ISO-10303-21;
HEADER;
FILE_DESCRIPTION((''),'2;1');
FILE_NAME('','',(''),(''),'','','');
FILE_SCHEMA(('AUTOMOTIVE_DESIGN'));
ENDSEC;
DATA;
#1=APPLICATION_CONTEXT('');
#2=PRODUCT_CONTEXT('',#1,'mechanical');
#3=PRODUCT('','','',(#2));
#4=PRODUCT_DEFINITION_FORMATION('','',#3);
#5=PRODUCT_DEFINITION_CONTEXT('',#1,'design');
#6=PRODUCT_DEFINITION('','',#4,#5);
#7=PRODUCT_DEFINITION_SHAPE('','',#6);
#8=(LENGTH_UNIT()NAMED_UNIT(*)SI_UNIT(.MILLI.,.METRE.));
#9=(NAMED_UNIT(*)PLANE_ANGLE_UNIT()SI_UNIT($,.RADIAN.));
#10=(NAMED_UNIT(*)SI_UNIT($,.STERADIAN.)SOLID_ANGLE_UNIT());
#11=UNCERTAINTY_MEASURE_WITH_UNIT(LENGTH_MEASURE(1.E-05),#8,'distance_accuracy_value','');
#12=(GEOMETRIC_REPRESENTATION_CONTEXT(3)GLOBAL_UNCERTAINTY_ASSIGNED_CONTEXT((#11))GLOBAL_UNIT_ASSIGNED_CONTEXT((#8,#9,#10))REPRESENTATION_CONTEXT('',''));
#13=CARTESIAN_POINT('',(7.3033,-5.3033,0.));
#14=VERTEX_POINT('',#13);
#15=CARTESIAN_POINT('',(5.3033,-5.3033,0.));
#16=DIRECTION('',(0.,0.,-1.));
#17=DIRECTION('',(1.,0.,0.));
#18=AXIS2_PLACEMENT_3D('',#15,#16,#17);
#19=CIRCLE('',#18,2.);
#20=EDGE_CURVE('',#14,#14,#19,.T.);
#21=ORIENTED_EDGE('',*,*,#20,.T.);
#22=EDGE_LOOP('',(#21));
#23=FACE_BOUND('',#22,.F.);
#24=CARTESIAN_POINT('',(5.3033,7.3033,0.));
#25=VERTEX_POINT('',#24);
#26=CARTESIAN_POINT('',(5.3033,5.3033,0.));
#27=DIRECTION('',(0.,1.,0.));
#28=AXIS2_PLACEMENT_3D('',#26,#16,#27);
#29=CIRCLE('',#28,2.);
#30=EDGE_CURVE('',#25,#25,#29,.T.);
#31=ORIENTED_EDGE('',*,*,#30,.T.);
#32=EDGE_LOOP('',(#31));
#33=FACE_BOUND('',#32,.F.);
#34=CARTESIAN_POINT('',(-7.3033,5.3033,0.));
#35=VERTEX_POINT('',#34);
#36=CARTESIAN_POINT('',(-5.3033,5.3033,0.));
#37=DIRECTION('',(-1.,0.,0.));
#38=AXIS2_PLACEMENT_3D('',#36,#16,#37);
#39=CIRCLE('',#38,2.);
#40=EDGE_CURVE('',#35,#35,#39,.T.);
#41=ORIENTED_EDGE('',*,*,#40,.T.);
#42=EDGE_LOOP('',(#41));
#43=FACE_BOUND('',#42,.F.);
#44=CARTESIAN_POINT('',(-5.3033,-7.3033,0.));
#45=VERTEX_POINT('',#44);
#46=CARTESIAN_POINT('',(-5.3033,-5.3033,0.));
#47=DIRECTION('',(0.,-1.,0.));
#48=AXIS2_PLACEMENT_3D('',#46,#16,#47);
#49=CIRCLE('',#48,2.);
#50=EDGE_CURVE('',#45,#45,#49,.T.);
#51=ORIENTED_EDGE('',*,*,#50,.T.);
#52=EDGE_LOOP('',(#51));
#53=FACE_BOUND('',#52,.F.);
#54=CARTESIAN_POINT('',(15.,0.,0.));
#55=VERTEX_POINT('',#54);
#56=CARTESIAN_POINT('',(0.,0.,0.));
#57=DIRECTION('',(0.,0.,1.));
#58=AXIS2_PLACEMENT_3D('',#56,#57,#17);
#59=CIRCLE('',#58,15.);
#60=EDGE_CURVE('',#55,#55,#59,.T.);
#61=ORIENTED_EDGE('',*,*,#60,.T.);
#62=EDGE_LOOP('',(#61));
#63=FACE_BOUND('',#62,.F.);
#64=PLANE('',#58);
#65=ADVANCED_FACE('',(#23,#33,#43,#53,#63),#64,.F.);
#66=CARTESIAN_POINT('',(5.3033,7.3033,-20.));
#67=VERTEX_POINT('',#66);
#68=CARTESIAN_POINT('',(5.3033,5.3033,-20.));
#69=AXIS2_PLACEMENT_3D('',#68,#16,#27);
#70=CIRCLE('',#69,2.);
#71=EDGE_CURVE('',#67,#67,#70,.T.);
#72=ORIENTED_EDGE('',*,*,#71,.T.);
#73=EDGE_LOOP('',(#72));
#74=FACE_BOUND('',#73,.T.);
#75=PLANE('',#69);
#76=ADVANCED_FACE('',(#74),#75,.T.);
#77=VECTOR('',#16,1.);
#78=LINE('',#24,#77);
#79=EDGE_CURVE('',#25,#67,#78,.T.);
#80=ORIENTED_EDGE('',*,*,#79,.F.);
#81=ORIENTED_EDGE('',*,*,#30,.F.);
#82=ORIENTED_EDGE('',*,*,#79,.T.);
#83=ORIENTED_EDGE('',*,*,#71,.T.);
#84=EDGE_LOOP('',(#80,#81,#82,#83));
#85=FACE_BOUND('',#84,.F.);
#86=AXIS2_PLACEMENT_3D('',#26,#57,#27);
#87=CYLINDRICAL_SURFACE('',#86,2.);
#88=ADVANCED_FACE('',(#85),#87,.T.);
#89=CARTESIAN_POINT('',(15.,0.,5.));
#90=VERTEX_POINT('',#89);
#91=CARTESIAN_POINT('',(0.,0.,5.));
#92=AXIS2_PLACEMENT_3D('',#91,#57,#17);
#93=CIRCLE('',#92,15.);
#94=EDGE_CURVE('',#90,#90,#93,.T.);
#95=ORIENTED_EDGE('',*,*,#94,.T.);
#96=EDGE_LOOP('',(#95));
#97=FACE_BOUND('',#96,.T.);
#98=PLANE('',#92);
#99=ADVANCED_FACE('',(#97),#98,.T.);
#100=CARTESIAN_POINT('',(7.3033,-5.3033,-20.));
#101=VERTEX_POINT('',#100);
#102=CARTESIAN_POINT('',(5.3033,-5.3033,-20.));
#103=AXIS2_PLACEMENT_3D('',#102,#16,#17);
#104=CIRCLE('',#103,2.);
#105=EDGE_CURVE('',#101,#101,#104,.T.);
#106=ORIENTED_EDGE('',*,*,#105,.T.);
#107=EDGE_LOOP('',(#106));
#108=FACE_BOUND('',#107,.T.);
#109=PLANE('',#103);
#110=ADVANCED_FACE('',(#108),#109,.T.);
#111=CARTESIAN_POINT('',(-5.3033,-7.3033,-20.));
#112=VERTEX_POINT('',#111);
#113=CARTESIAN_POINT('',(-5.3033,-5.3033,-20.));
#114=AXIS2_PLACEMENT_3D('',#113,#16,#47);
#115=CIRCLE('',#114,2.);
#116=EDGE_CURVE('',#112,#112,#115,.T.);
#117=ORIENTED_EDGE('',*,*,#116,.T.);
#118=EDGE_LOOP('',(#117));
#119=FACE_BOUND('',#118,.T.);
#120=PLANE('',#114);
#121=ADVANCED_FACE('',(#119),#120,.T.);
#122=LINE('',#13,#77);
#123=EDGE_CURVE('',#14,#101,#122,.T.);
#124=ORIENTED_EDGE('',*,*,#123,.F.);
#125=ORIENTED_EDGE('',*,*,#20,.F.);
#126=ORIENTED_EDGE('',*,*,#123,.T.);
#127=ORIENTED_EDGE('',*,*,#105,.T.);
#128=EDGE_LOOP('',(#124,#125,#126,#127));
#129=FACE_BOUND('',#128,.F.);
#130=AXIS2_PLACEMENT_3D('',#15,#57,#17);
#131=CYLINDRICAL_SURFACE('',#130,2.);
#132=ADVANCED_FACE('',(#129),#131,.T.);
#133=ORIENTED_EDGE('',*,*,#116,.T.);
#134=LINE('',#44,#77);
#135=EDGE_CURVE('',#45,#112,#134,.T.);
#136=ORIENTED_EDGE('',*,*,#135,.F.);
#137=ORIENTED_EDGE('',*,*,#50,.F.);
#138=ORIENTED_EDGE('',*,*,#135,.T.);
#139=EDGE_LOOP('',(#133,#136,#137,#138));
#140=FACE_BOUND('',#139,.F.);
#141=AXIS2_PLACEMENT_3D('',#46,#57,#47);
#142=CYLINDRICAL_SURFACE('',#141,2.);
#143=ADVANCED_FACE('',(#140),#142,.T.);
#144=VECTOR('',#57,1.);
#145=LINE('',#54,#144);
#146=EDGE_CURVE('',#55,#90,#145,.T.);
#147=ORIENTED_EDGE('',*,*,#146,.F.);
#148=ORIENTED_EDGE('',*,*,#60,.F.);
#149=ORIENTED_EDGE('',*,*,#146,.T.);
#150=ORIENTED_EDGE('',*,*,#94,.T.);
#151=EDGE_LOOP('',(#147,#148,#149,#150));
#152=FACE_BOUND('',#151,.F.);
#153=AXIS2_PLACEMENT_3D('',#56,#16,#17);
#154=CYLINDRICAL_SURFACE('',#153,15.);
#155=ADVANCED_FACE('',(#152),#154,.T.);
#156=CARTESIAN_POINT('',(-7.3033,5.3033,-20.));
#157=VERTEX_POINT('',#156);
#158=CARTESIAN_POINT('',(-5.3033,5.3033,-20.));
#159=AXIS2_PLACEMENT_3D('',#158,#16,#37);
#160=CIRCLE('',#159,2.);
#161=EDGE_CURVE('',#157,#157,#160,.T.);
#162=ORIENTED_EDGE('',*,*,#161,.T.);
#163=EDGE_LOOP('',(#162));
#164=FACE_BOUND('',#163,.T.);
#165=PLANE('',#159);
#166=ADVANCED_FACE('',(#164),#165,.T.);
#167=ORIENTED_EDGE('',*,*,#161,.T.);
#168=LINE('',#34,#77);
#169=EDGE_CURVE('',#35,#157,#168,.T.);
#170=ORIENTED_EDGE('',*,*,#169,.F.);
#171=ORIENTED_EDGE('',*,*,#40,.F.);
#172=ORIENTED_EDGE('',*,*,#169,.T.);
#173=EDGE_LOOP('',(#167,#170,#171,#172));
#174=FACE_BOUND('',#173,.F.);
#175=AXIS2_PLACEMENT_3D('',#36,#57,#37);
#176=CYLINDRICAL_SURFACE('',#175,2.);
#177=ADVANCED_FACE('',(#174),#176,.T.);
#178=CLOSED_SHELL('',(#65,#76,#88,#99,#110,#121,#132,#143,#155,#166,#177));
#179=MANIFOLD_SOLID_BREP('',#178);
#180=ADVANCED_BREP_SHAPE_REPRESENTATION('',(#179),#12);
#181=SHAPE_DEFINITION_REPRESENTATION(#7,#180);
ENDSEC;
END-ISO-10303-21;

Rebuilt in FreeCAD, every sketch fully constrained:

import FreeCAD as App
import Part
import Sketcher

V = App.Vector

doc = App.newDocument("Part")
body = doc.addObject("PartDesign::Body", "Body")

sketch1 = body.newObject("Sketcher::SketchObject", "Sketch")
sketch1.AttachmentSupport = (doc.getObject("XY_Plane"), [""])
sketch1.MapMode = "FlatFace"
sketch1.addGeometry(Part.Circle(V(0, 0, 0), V(0, 0, 1), 15), False)
sketch1.addConstraint([
    Sketcher.Constraint("Coincident", 0, 3, -1, 1),
    Sketcher.Constraint("Diameter", 0, 30.0),
])
pad1 = body.newObject("PartDesign::Pad", "Pad")
pad1.Profile = sketch1
pad1.Length = 5

sketch2 = body.newObject("Sketcher::SketchObject", "Sketch001")
sketch2.AttachmentSupport = (doc.getObject("XY_Plane"), [""])
sketch2.MapMode = "FlatFace"
sketch2.addGeometry(Part.Circle(V(-5.3033, 5.3033, 0), V(0, 0, 1), 2), False)
sketch2.addConstraint([
    Sketcher.Constraint("Diameter", 0, 4.0),
    Sketcher.Constraint("DistanceX", 0, 3, -1, 1, 5.3033),
    Sketcher.Constraint("DistanceY", -1, 1, 0, 3, 5.3033),
])
pad2 = body.newObject("PartDesign::Pad", "Pad001")
pad2.Profile = sketch2
pad2.Length = 20
pad2.Reversed = True
doc.recompute()

polarpattern = body.newObject("PartDesign::PolarPattern", "PolarPattern")
polarpattern.Originals = [pad2]
polarpattern.Axis = (doc.getObject("Z_Axis"), [""])
polarpattern.Angle = 360
polarpattern.Occurrences = 4
body.Tip = polarpattern

doc.recompute()
